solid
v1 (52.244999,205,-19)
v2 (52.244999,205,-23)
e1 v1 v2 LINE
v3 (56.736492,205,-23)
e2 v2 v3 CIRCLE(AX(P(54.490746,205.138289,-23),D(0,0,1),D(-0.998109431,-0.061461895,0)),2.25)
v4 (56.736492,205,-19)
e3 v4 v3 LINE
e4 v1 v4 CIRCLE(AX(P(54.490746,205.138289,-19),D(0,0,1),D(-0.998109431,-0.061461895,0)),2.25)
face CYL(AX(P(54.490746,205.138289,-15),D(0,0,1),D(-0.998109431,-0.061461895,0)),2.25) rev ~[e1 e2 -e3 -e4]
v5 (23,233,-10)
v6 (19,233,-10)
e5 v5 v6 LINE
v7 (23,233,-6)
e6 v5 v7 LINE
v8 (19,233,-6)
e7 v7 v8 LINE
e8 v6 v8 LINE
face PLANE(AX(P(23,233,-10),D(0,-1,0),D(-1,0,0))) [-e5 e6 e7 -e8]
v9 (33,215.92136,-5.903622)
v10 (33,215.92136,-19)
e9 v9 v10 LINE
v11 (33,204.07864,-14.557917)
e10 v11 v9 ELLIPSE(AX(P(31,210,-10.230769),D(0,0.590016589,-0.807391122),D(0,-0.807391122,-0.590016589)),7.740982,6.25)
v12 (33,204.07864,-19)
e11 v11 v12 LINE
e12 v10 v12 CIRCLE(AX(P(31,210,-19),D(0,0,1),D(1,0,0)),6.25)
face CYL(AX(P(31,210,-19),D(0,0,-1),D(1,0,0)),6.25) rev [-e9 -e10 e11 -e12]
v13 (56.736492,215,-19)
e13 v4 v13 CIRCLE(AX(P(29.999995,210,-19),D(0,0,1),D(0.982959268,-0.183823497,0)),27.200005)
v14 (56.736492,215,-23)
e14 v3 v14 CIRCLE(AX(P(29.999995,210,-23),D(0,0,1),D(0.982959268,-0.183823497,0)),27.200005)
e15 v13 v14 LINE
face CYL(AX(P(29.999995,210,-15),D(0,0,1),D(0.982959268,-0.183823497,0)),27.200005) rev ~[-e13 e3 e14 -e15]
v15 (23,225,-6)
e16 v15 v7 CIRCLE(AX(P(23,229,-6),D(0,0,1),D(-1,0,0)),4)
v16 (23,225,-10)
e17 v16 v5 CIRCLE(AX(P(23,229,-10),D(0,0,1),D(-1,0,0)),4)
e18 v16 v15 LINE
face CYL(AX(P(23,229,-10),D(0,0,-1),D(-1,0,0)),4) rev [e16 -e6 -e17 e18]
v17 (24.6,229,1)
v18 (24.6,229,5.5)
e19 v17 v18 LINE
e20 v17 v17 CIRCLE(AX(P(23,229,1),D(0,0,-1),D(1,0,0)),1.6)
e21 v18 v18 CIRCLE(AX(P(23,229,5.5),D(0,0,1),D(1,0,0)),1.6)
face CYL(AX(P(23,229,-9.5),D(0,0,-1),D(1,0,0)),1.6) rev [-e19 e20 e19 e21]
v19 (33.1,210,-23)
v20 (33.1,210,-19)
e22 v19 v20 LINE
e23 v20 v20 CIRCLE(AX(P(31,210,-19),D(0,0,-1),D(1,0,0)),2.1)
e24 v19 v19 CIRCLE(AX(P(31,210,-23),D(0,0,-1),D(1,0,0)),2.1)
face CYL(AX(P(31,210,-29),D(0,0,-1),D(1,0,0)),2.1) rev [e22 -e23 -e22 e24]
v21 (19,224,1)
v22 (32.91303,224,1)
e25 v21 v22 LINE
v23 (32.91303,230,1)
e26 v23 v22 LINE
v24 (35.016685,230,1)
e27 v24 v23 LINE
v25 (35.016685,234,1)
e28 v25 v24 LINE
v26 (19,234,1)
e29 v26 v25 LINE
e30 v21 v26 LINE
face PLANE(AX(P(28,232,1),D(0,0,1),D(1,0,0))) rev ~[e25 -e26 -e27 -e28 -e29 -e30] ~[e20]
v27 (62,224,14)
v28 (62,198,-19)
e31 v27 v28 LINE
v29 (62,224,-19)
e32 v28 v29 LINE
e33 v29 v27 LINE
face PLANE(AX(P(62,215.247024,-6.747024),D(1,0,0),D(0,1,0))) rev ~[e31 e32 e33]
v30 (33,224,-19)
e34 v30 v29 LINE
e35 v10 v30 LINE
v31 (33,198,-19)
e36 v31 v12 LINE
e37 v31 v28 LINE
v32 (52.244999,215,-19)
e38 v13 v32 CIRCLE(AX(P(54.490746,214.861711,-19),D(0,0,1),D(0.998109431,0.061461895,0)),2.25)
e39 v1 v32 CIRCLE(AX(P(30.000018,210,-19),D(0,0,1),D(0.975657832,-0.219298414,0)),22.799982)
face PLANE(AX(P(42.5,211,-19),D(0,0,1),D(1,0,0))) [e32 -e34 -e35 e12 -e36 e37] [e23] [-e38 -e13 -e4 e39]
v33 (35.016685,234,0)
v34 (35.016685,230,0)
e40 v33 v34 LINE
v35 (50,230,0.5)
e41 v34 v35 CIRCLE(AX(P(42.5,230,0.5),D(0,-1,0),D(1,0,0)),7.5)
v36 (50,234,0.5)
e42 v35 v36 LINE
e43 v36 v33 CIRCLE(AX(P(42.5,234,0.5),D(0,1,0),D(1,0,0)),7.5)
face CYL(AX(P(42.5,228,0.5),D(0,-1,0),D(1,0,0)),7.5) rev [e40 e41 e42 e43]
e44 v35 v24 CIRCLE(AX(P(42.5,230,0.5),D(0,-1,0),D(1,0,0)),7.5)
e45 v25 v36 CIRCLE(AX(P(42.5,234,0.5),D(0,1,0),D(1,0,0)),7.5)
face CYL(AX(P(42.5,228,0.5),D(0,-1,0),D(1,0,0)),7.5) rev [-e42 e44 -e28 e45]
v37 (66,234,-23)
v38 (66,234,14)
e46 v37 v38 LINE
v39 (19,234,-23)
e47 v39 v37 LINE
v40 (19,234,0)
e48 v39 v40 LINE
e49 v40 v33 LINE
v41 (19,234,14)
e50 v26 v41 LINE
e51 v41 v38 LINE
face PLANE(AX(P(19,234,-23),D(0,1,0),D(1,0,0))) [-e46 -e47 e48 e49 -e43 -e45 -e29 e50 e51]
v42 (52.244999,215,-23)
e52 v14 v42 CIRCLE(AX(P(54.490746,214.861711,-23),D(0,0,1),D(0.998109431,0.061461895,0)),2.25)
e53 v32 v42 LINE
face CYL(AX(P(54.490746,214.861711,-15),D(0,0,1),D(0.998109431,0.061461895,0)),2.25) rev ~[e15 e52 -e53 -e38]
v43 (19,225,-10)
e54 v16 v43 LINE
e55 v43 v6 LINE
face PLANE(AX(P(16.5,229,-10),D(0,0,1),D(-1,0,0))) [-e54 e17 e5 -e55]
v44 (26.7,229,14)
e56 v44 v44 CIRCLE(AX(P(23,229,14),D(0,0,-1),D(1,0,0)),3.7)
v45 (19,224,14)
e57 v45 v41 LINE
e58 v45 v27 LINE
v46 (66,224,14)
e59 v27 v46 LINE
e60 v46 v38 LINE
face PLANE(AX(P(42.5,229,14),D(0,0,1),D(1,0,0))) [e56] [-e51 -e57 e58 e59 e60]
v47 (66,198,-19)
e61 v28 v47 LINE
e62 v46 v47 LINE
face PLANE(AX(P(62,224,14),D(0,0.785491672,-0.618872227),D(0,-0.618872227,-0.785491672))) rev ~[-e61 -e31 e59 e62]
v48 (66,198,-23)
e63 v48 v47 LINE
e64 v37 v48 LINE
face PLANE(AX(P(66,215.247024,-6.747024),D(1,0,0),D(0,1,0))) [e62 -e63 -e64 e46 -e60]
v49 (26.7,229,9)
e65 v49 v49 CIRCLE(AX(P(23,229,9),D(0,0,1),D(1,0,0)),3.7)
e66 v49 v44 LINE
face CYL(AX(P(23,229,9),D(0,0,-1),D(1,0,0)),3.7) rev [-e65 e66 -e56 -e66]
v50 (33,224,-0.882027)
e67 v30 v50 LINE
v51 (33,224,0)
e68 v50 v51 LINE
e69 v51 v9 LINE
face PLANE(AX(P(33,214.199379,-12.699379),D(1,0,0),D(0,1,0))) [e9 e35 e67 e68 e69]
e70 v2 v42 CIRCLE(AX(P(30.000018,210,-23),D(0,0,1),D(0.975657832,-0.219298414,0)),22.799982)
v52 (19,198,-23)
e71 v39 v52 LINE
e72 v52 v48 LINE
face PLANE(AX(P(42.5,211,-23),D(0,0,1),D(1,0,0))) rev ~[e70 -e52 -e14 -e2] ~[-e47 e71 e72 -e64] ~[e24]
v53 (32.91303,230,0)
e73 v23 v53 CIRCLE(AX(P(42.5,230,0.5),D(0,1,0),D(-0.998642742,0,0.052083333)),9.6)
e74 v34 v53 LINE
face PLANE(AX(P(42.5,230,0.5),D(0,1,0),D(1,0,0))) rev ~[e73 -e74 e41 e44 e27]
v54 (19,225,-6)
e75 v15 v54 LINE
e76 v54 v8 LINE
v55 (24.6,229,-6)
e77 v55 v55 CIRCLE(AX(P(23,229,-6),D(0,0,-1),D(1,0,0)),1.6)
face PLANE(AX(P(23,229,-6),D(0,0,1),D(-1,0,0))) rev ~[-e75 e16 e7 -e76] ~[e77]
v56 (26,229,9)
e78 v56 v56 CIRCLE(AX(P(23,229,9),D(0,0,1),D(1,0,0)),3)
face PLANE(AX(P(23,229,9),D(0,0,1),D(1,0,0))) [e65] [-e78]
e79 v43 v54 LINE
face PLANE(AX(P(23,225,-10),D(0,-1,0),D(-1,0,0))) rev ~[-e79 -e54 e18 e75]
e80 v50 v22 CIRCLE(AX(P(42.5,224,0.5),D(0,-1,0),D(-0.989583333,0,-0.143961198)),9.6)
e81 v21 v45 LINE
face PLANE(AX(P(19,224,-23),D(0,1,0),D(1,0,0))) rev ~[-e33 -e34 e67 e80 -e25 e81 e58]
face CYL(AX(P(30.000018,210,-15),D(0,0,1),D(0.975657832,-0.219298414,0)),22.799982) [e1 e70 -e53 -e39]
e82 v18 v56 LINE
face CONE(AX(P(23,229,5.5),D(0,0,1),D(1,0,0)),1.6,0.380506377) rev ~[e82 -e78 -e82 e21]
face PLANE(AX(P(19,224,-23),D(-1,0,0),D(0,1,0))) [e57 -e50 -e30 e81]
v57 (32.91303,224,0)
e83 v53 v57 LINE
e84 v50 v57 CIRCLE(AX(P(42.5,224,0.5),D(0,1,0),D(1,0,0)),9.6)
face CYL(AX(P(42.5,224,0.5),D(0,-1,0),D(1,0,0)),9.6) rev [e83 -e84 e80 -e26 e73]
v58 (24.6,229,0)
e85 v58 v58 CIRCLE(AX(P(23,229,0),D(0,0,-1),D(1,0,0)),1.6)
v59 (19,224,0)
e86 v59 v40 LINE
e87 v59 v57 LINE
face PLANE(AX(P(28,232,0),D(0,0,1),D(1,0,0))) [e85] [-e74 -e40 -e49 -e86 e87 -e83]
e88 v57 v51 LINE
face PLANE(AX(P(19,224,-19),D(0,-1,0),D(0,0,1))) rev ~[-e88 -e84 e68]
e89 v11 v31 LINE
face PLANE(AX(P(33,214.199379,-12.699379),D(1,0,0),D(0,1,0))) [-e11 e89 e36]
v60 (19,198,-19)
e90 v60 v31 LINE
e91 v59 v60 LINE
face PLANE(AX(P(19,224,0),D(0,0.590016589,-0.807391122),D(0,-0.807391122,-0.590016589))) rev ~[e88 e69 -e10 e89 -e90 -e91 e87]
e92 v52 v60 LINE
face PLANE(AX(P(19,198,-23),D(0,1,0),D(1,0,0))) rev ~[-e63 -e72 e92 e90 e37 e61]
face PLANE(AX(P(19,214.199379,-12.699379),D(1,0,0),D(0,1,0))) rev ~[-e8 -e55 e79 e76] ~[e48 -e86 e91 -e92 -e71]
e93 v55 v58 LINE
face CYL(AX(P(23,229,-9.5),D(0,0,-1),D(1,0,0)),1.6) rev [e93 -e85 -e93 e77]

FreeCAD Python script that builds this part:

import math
import FreeCAD as App
import Part
import Sketcher


def add_polygon(sketch, points):
    """Adds a closed chain of lines whose ends are joined by coincident constraints."""
    first, n = sketch.GeometryCount, len(points)
    for a, b in zip(points, points[1:] + points[:1]):
        sketch.addGeometry(Part.LineSegment(App.Vector(*a, 0), App.Vector(*b, 0)), False)
    for i in range(n):
        sketch.addConstraint(Sketcher.Constraint("Coincident", first + i, 2, first + (i + 1) % n, 1))

doc = App.newDocument("Part")
body = doc.addObject("PartDesign::Body", "Body")

# Sketch on XY plane
sketch1 = body.newObject("Sketcher::SketchObject", "Sketch")
sketch1.AttachmentSupport = (doc.getObject("XY_Plane"), [""])
sketch1.MapMode = "FlatFace"
sketch1.AttachmentOffset = App.Placement(App.Vector(0, 0, 10), App.Rotation())
sketch1.addGeometry(Part.Circle(App.Vector(0, 0, 0), App.Vector(0, 0, 1), 6), False)
sketch1.addConstraint([
    Sketcher.Constraint("Coincident", 0, 3, -1, 1),
    Sketcher.Constraint("Diameter", 0, 12.5),
])
pad1 = body.newObject("PartDesign::Pad", "Pad")
pad1.Profile = sketch1
pad1.Length = 17
body2 = doc.addObject("PartDesign::Body", "Body001")

# Sketch on XY plane
sketch2 = body2.newObject("Sketcher::SketchObject", "Sketch001")
sketch2.AttachmentSupport = (doc.getObject("XY_Plane001"), [""])
sketch2.MapMode = "FlatFace"
sketch2.addGeometry(Part.Circle(App.Vector(0, 0, 0), App.Vector(0, 0, 1), 2.1), False)
sketch2.addConstraint([
    Sketcher.Constraint("Coincident", 0, 3, -1, 1),
    Sketcher.Constraint("Diameter", 0, 4.2),
])
pad2 = body2.newObject("PartDesign::Pad", "Pad001")
pad2.Profile = sketch2
pad2.Length = 10
doc.recompute()

boolean = body2.newObject("PartDesign::Boolean", "Boolean")
boolean.Type = "Fuse"
boolean.addObjects([body])
body3 = doc.addObject("PartDesign::Body", "Body002")
doc.recompute()

body2.Placement = App.Placement(App.Vector(12, 12, -6), App.Rotation(App.Vector(0, 0, 1), 0))
boolean2 = body3.newObject("PartDesign::Boolean", "Boolean001")
boolean2.Type = "Fuse"
boolean2.addObjects([body2])
body4 = doc.addObject("PartDesign::Body", "Body003")

# Sketch on XY plane
sketch3 = body4.newObject("Sketcher::SketchObject", "Sketch002")
sketch3.AttachmentSupport = (doc.getObject("XY_Plane003"), [""])
sketch3.MapMode = "FlatFace"
sketch3.addGeometry([
    Part.ArcOfCircle(Part.Circle(App.Vector(9, 15, 0), App.Vector(0, 0, 1), 27.2), math.radians(-11), math.radians(11)),
    Part.ArcOfCircle(Part.Circle(App.Vector(33.5, 19.9, 0), App.Vector(0, 0, 1), 2.3), math.radians(4), math.radians(176)),
    Part.ArcOfCircle(Part.Circle(App.Vector(9, 15, 0), App.Vector(0, 0, 1), 22.8), math.radians(-13), math.radians(13)),
    Part.ArcOfCircle(Part.Circle(App.Vector(33.5, 10.1, 0), App.Vector(0, 0, 1), 2.3), math.radians(-176), math.radians(-4)),
], False)
sketch3.addConstraint([
    Sketcher.Constraint("Coincident", 0, 2, 1, 1),
    Sketcher.Constraint("Coincident", 1, 2, 2, 2),
    Sketcher.Constraint("Coincident", 2, 1, 3, 1),
    Sketcher.Constraint("Coincident", 3, 2, 0, 1),
    Sketcher.Constraint("Equal", 1, 3),
    Sketcher.Constraint("Horizontal", 0, 3, 2, 3),
    Sketcher.Constraint("Horizontal", 0, 2, 1, 2),
    Sketcher.Constraint("Horizontal", 2, 1, 3, 2),
    Sketcher.Constraint("Vertical", 1, 3, 3, 3),
    Sketcher.Constraint("Radius", 1, 2.25),
    Sketcher.Constraint("DistanceY", -1, 1, 0, 3, 15.0),
    Sketcher.Constraint("DistanceY", -1, 1, 0, 2, 20.0),
    Sketcher.Constraint("DistanceX", -1, 1, 1, 2, 31.244999),
    Sketcher.Constraint("Radius", 0, 27.200005),
    Sketcher.Constraint("Radius", 2, 22.799982),
    Sketcher.Constraint("DistanceY", -1, 1, 1, 3, 19.861711),
])
pad3 = body4.newObject("PartDesign::Pad", "Pad002")
pad3.Profile = sketch3
pad3.Length = 10
pad3.Reversed = True
body5 = doc.addObject("PartDesign::Body", "Body004")
doc.recompute()

body4.Placement = App.Placement(App.Vector(2, -3, 8), App.Rotation(App.Vector(0, 0, 1), 0))
boolean3 = body5.newObject("PartDesign::Boolean", "Boolean002")
boolean3.Type = "Fuse"
boolean3.addObjects([body4])
body6 = doc.addObject("PartDesign::Body", "Body005")

# Sketch on YZ plane
sketch4 = body6.newObject("Sketcher::SketchObject", "Sketch003")
sketch4.AttachmentSupport = (doc.getObject("YZ_Plane005"), [""])
sketch4.MapMode = "FlatFace"
add_polygon(sketch4, [(0, 4), (26, 4), (26, 23)])  # lines 0-2
sketch4.addConstraint([
    Sketcher.Constraint("Horizontal", 0),
    Sketcher.Constraint("Vertical", 1),
    Sketcher.Constraint("PointOnObject", 2, 2, -2),
    Sketcher.Constraint("DistanceX", 0, 1, 0, 2, 26.0),
    Sketcher.Constraint("DistanceY", 1, 1, 1, 2, 19.0),
    Sketcher.Constraint("DistanceY", -1, 1, 0, 2, 4.0),
])
pad4 = body6.newObject("PartDesign::Pad", "Pad003")
pad4.Profile = sketch4
pad4.Length = 14
body7 = doc.addObject("PartDesign::Body", "Body006")

# Sketch on YZ plane
sketch5 = body7.newObject("Sketcher::SketchObject", "Sketch004")
sketch5.AttachmentSupport = (doc.getObject("YZ_Plane006"), [""])
sketch5.MapMode = "FlatFace"
add_polygon(sketch5, [(0, 4), (26, 4), (26, 37)])  # lines 0-2
sketch5.addConstraint([
    Sketcher.Constraint("Horizontal", 0),
    Sketcher.Constraint("Vertical", 1),
    Sketcher.Constraint("PointOnObject", 2, 2, -2),
    Sketcher.Constraint("DistanceX", 0, 1, 0, 2, 26.0),
    Sketcher.Constraint("DistanceY", 1, 1, 1, 2, 33.0),
    Sketcher.Constraint("DistanceY", -1, 1, 0, 2, 4.0),
])
pad5 = body7.newObject("PartDesign::Pad", "Pad004")
pad5.Profile = sketch5
pad5.Length = 4
body8 = doc.addObject("PartDesign::Body", "Body007")
doc.recompute()

body7.Placement = App.Placement(App.Vector(43, 0, 0), App.Rotation(App.Vector(0, 0, 1), 0))
boolean4 = body8.newObject("PartDesign::Boolean", "Boolean003")
boolean4.Type = "Fuse"
boolean4.addObjects([body7])
body9 = doc.addObject("PartDesign::Body", "Body008")

# Sketch on XY plane
sketch6 = body9.newObject("Sketcher::SketchObject", "Sketch005")
sketch6.AttachmentSupport = (doc.getObject("XY_Plane008"), [""])
sketch6.MapMode = "FlatFace"
add_polygon(sketch6, [(0, 26), (0, 0), (47, 0), (47, 26)])  # lines 0-3
sketch6.addConstraint([
    Sketcher.Constraint("Vertical", 0),
    Sketcher.Constraint("Horizontal", 1),
    Sketcher.Constraint("Vertical", 2),
    Sketcher.Constraint("Horizontal", 3),
    Sketcher.Constraint("Coincident", 0, 2, -1, 1),
    Sketcher.Constraint("DistanceX", 1, 1, 1, 2, 47.0),
    Sketcher.Constraint("DistanceY", 0, 2, 0, 1, 26.0),
])
pad6 = body9.newObject("PartDesign::Pad", "Pad005")
pad6.Profile = sketch6
pad6.Length = 4
body10 = doc.addObject("PartDesign::Body", "Body009")

# Sketch on XY plane
sketch7 = body10.newObject("Sketcher::SketchObject", "Sketch006")
sketch7.AttachmentSupport = (doc.getObject("XY_Plane009"), [""])
sketch7.MapMode = "FlatFace"
sketch7.AttachmentOffset = App.Placement(App.Vector(0, 0, -8), App.Rotation())
sketch7.addGeometry(Part.Circle(App.Vector(9, 11, 0), App.Vector(0, 0, 1), 4), False)
sketch7.addConstraint([
    Sketcher.Constraint("Diameter", 0, 8.0),
    Sketcher.Constraint("DistanceX", -1, 1, 0, 3, 9.0),
    Sketcher.Constraint("DistanceY", -1, 1, 0, 3, 11.0),
])
pad7 = body10.newObject("PartDesign::Pad", "Pad006")
pad7.Profile = sketch7
pad7.Length = 4
body11 = doc.addObject("PartDesign::Body", "Body010")

# Sketch on XY plane
sketch8 = body11.newObject("Sketcher::SketchObject", "Sketch007")
sketch8.AttachmentSupport = (doc.getObject("XY_Plane010"), [""])
sketch8.MapMode = "FlatFace"
sketch8.AttachmentOffset = App.Placement(App.Vector(0, 0, -8), App.Rotation())
add_polygon(sketch8, [(9, 15), (9, 7), (22, 7), (22, 15)])  # lines 0-3
sketch8.addConstraint([
    Sketcher.Constraint("Vertical", 0),
    Sketcher.Constraint("Horizontal", 1),
    Sketcher.Constraint("Vertical", 2),
    Sketcher.Constraint("Horizontal", 3),
    Sketcher.Constraint("DistanceX", 1, 1, 1, 2, 13.0),
    Sketcher.Constraint("DistanceY", 0, 2, 0, 1, 8.0),
    Sketcher.Constraint("DistanceX", -1, 1, 0, 2, 9.0),
    Sketcher.Constraint("DistanceY", -1, 1, 0, 2, 7.0),
])
pad8 = body11.newObject("PartDesign::Pad", "Pad007")
pad8.Profile = sketch8
pad8.Length = 4
doc.recompute()

boolean5 = body11.newObject("PartDesign::Boolean", "Boolean004")
boolean5.Type = "Fuse"
boolean5.addObjects([body10])
body12 = doc.addObject("PartDesign::Body", "Body011")
doc.recompute()

body11.Placement = App.Placement(App.Vector(13, 42, 21), App.Rotation(App.Vector(0, 0, 1), 180))
boolean6 = body12.newObject("PartDesign::Boolean", "Boolean005")
boolean6.Type = "Fuse"
boolean6.addObjects([body11])
body13 = doc.addObject("PartDesign::Body", "Body012")

# Sketch on XY plane
sketch9 = body13.newObject("Sketcher::SketchObject", "Sketch008")
sketch9.AttachmentSupport = (doc.getObject("XY_Plane012"), [""])
sketch9.MapMode = "FlatFace"
sketch9.addGeometry(Part.Circle(App.Vector(0, 0, 0), App.Vector(0, 0, 1), 1.6), False)
sketch9.addConstraint([
    Sketcher.Constraint("Coincident", 0, 3, -1, 1),
    Sketcher.Constraint("Diameter", 0, 3.2),
])
pad9 = body13.newObject("PartDesign::Pad", "Pad008")
pad9.Profile = sketch9
pad9.Length = 15
body14 = doc.addObject("PartDesign::Body", "Body013")

# Sketch on XZ plane
sketch10 = body14.newObject("Sketcher::SketchObject", "Sketch009")
sketch10.AttachmentSupport = (doc.getObject("XZ_Plane013"), [""])
sketch10.MapMode = "FlatFace"
add_polygon(sketch10, [(0, 15), (1.6, 15), (3, 18.5), (0, 18.5)])  # lines 0-3
sketch10.addConstraint([
    Sketcher.Constraint("Horizontal", 0),
    Sketcher.Constraint("Horizontal", 2),
    Sketcher.Constraint("Vertical", 3),
    Sketcher.Constraint("PointOnObject", 2, 2, -2),
    Sketcher.Constraint("DistanceX", 2, 2, 2, 1, 3.0),
    Sketcher.Constraint("DistanceX", 0, 1, 0, 2, 1.6),
    Sketcher.Constraint("DistanceY", 3, 2, 3, 1, 3.5),
    Sketcher.Constraint("DistanceY", -1, 1, 0, 2, 15.0),
])
revolution = body14.newObject("PartDesign::Revolution", "Revolution")
revolution.Profile = sketch10
revolution.ReferenceAxis = (sketch10, ["V_Axis"])
revolution.Angle = 360
doc.recompute()

boolean7 = body14.newObject("PartDesign::Boolean", "Boolean006")
boolean7.Type = "Fuse"
boolean7.addObjects([body13])
body15 = doc.addObject("PartDesign::Body", "Body014")
doc.recompute()

body14.Placement = App.Placement(App.Vector(4, 31, 13.5), App.Rotation(App.Vector(0, 0, 1), 0))
boolean8 = body15.newObject("PartDesign::Boolean", "Boolean007")
boolean8.Type = "Fuse"
boolean8.addObjects([body14])
body16 = doc.addObject("PartDesign::Body", "Body015")

# Sketch on XY plane
sketch11 = body16.newObject("Sketcher::SketchObject", "Sketch010")
sketch11.AttachmentSupport = (doc.getObject("XY_Plane015"), [""])
sketch11.MapMode = "FlatFace"
sketch11.AttachmentOffset = App.Placement(App.Vector(0, 0, 32), App.Rotation())
sketch11.addGeometry(Part.Circle(App.Vector(4, 31, 0), App.Vector(0, 0, 1), 3.7), False)
sketch11.addConstraint([
    Sketcher.Constraint("Diameter", 0, 7.4),
    Sketcher.Constraint("DistanceX", -1, 1, 0, 3, 4.0),
    Sketcher.Constraint("DistanceY", -1, 1, 0, 3, 31.0),
])
pad10 = body16.newObject("PartDesign::Pad", "Pad009")
pad10.Profile = sketch11
pad10.Length = 10
body17 = doc.addObject("PartDesign::Body", "Body016")

# Sketch on XZ plane
sketch12 = body17.newObject("Sketcher::SketchObject", "Sketch011")
sketch12.AttachmentSupport = (doc.getObject("XZ_Plane016"), [""])
sketch12.MapMode = "FlatFace"
sketch12.AttachmentOffset = App.Placement(App.Vector(0, 0, -30), App.Rotation())
sketch12.addGeometry(Part.Circle(App.Vector(24, 24, 0), App.Vector(0, 0, 1), 8), False)
sketch12.addConstraint([
    Sketcher.Constraint("Diameter", 0, 15.0),
    Sketcher.Constraint("DistanceX", -1, 1, 0, 3, 23.5),
    Sketcher.Constraint("DistanceY", -1, 1, 0, 3, 23.5),
])
pad11 = body17.newObject("PartDesign::Pad", "Pad010")
pad11.Profile = sketch12
pad11.Length = 6
pad11.Reversed = True
body18 = doc.addObject("PartDesign::Body", "Body017")

# Sketch on XZ plane
sketch13 = body18.newObject("Sketcher::SketchObject", "Sketch012")
sketch13.AttachmentSupport = (doc.getObject("XZ_Plane017"), [""])
sketch13.MapMode = "FlatFace"
sketch13.AttachmentOffset = App.Placement(App.Vector(0, 0, -26), App.Rotation())
sketch13.addGeometry(Part.Circle(App.Vector(24, 24, 0), App.Vector(0, 0, 1), 10), False)
sketch13.addConstraint([
    Sketcher.Constraint("Diameter", 0, 19.2),
    Sketcher.Constraint("DistanceX", -1, 1, 0, 3, 23.5),
    Sketcher.Constraint("DistanceY", -1, 1, 0, 3, 23.5),
])
pad12 = body18.newObject("PartDesign::Pad", "Pad011")
pad12.Profile = sketch13
pad12.Length = 6
pad12.Reversed = True
body19 = doc.addObject("PartDesign::Body", "Body018")

# Sketch on XY plane
sketch14 = body19.newObject("Sketcher::SketchObject", "Sketch013")
sketch14.AttachmentSupport = (doc.getObject("XY_Plane018"), [""])
sketch14.MapMode = "FlatFace"
sketch14.AttachmentOffset = App.Placement(App.Vector(0, 0, 23), App.Rotation())
add_polygon(sketch14, [(-4, 55), (-4, 13), (22, 13), (22, 55)])  # lines 0-3
sketch14.addConstraint([
    Sketcher.Constraint("Vertical", 0),
    Sketcher.Constraint("Horizontal", 1),
    Sketcher.Constraint("Vertical", 2),
    Sketcher.Constraint("Horizontal", 3),
    Sketcher.Constraint("DistanceX", 1, 1, 1, 2, 26.0),
    Sketcher.Constraint("DistanceY", 0, 2, 0, 1, 42.0),
    Sketcher.Constraint("DistanceX", 0, 2, -1, 1, 4.0),
    Sketcher.Constraint("DistanceY", -1, 1, 0, 2, 13.0),
])
pad13 = body19.newObject("PartDesign::Pad", "Pad012")
pad13.Profile = sketch14
pad13.Length = 1
body20 = doc.addObject("PartDesign::Body", "Body019")

# Sketch on XY plane
sketch15 = body20.newObject("Sketcher::SketchObject", "Sketch014")
sketch15.AttachmentSupport = (doc.getObject("XY_Plane019"), [""])
sketch15.MapMode = "FlatFace"
add_polygon(sketch15, [(0, 36), (0, 26), (47, 26), (47, 36)])  # lines 0-3
sketch15.addConstraint([
    Sketcher.Constraint("Vertical", 0),
    Sketcher.Constraint("Horizontal", 1),
    Sketcher.Constraint("Vertical", 2),
    Sketcher.Constraint("Horizontal", 3),
    Sketcher.Constraint("PointOnObject", 0, 2, -2),
    Sketcher.Constraint("DistanceX", 1, 1, 1, 2, 47.0),
    Sketcher.Constraint("DistanceY", 0, 2, 0, 1, 10.0),
    Sketcher.Constraint("DistanceY", -1, 1, 0, 2, 26.0),
])
pad14 = body20.newObject("PartDesign::Pad", "Pad013")
pad14.Profile = sketch15
pad14.Length = 37
doc.recompute()

boolean9 = body20.newObject("PartDesign::Boolean", "Boolean008")
boolean9.Type = "Cut"
boolean9.addObjects([body19])
doc.recompute()

boolean10 = body20.newObject("PartDesign::Boolean", "Boolean009")
boolean10.Type = "Cut"
boolean10.addObjects([body18])
doc.recompute()

boolean11 = body20.newObject("PartDesign::Boolean", "Boolean010")
boolean11.Type = "Cut"
boolean11.addObjects([body17])
doc.recompute()

boolean12 = body20.newObject("PartDesign::Boolean", "Boolean011")
boolean12.Type = "Cut"
boolean12.addObjects([body16])
doc.recompute()

boolean13 = body20.newObject("PartDesign::Boolean", "Boolean012")
boolean13.Type = "Cut"
boolean13.addObjects([body15])
doc.recompute()

boolean14 = body20.newObject("PartDesign::Boolean", "Boolean013")
boolean14.Type = "Cut"
boolean14.addObjects([body12])
doc.recompute()

boolean15 = body20.newObject("PartDesign::Boolean", "Boolean014")
boolean15.Type = "Fuse"
boolean15.addObjects([body9])
doc.recompute()

boolean16 = body20.newObject("PartDesign::Boolean", "Boolean015")
boolean16.Type = "Fuse"
boolean16.addObjects([body6])
doc.recompute()

boolean17 = body20.newObject("PartDesign::Boolean", "Boolean016")
boolean17.Type = "Fuse"
boolean17.addObjects([body8])
doc.recompute()

boolean18 = body20.newObject("PartDesign::Boolean", "Boolean017")
boolean18.Type = "Cut"
boolean18.addObjects([body5])
doc.recompute()

boolean19 = body20.newObject("PartDesign::Boolean", "Boolean018")
boolean19.Type = "Cut"
boolean19.addObjects([body3])
body21 = doc.addObject("PartDesign::Body", "Body020")
doc.recompute()

body20.Placement = App.Placement(App.Vector(19, 198, -23), App.Rotation(App.Vector(0, 0, 1), 0))
boolean20 = body21.newObject("PartDesign::Boolean", "Boolean019")
boolean20.Type = "Fuse"
boolean20.addObjects([body20])

doc.recompute()
